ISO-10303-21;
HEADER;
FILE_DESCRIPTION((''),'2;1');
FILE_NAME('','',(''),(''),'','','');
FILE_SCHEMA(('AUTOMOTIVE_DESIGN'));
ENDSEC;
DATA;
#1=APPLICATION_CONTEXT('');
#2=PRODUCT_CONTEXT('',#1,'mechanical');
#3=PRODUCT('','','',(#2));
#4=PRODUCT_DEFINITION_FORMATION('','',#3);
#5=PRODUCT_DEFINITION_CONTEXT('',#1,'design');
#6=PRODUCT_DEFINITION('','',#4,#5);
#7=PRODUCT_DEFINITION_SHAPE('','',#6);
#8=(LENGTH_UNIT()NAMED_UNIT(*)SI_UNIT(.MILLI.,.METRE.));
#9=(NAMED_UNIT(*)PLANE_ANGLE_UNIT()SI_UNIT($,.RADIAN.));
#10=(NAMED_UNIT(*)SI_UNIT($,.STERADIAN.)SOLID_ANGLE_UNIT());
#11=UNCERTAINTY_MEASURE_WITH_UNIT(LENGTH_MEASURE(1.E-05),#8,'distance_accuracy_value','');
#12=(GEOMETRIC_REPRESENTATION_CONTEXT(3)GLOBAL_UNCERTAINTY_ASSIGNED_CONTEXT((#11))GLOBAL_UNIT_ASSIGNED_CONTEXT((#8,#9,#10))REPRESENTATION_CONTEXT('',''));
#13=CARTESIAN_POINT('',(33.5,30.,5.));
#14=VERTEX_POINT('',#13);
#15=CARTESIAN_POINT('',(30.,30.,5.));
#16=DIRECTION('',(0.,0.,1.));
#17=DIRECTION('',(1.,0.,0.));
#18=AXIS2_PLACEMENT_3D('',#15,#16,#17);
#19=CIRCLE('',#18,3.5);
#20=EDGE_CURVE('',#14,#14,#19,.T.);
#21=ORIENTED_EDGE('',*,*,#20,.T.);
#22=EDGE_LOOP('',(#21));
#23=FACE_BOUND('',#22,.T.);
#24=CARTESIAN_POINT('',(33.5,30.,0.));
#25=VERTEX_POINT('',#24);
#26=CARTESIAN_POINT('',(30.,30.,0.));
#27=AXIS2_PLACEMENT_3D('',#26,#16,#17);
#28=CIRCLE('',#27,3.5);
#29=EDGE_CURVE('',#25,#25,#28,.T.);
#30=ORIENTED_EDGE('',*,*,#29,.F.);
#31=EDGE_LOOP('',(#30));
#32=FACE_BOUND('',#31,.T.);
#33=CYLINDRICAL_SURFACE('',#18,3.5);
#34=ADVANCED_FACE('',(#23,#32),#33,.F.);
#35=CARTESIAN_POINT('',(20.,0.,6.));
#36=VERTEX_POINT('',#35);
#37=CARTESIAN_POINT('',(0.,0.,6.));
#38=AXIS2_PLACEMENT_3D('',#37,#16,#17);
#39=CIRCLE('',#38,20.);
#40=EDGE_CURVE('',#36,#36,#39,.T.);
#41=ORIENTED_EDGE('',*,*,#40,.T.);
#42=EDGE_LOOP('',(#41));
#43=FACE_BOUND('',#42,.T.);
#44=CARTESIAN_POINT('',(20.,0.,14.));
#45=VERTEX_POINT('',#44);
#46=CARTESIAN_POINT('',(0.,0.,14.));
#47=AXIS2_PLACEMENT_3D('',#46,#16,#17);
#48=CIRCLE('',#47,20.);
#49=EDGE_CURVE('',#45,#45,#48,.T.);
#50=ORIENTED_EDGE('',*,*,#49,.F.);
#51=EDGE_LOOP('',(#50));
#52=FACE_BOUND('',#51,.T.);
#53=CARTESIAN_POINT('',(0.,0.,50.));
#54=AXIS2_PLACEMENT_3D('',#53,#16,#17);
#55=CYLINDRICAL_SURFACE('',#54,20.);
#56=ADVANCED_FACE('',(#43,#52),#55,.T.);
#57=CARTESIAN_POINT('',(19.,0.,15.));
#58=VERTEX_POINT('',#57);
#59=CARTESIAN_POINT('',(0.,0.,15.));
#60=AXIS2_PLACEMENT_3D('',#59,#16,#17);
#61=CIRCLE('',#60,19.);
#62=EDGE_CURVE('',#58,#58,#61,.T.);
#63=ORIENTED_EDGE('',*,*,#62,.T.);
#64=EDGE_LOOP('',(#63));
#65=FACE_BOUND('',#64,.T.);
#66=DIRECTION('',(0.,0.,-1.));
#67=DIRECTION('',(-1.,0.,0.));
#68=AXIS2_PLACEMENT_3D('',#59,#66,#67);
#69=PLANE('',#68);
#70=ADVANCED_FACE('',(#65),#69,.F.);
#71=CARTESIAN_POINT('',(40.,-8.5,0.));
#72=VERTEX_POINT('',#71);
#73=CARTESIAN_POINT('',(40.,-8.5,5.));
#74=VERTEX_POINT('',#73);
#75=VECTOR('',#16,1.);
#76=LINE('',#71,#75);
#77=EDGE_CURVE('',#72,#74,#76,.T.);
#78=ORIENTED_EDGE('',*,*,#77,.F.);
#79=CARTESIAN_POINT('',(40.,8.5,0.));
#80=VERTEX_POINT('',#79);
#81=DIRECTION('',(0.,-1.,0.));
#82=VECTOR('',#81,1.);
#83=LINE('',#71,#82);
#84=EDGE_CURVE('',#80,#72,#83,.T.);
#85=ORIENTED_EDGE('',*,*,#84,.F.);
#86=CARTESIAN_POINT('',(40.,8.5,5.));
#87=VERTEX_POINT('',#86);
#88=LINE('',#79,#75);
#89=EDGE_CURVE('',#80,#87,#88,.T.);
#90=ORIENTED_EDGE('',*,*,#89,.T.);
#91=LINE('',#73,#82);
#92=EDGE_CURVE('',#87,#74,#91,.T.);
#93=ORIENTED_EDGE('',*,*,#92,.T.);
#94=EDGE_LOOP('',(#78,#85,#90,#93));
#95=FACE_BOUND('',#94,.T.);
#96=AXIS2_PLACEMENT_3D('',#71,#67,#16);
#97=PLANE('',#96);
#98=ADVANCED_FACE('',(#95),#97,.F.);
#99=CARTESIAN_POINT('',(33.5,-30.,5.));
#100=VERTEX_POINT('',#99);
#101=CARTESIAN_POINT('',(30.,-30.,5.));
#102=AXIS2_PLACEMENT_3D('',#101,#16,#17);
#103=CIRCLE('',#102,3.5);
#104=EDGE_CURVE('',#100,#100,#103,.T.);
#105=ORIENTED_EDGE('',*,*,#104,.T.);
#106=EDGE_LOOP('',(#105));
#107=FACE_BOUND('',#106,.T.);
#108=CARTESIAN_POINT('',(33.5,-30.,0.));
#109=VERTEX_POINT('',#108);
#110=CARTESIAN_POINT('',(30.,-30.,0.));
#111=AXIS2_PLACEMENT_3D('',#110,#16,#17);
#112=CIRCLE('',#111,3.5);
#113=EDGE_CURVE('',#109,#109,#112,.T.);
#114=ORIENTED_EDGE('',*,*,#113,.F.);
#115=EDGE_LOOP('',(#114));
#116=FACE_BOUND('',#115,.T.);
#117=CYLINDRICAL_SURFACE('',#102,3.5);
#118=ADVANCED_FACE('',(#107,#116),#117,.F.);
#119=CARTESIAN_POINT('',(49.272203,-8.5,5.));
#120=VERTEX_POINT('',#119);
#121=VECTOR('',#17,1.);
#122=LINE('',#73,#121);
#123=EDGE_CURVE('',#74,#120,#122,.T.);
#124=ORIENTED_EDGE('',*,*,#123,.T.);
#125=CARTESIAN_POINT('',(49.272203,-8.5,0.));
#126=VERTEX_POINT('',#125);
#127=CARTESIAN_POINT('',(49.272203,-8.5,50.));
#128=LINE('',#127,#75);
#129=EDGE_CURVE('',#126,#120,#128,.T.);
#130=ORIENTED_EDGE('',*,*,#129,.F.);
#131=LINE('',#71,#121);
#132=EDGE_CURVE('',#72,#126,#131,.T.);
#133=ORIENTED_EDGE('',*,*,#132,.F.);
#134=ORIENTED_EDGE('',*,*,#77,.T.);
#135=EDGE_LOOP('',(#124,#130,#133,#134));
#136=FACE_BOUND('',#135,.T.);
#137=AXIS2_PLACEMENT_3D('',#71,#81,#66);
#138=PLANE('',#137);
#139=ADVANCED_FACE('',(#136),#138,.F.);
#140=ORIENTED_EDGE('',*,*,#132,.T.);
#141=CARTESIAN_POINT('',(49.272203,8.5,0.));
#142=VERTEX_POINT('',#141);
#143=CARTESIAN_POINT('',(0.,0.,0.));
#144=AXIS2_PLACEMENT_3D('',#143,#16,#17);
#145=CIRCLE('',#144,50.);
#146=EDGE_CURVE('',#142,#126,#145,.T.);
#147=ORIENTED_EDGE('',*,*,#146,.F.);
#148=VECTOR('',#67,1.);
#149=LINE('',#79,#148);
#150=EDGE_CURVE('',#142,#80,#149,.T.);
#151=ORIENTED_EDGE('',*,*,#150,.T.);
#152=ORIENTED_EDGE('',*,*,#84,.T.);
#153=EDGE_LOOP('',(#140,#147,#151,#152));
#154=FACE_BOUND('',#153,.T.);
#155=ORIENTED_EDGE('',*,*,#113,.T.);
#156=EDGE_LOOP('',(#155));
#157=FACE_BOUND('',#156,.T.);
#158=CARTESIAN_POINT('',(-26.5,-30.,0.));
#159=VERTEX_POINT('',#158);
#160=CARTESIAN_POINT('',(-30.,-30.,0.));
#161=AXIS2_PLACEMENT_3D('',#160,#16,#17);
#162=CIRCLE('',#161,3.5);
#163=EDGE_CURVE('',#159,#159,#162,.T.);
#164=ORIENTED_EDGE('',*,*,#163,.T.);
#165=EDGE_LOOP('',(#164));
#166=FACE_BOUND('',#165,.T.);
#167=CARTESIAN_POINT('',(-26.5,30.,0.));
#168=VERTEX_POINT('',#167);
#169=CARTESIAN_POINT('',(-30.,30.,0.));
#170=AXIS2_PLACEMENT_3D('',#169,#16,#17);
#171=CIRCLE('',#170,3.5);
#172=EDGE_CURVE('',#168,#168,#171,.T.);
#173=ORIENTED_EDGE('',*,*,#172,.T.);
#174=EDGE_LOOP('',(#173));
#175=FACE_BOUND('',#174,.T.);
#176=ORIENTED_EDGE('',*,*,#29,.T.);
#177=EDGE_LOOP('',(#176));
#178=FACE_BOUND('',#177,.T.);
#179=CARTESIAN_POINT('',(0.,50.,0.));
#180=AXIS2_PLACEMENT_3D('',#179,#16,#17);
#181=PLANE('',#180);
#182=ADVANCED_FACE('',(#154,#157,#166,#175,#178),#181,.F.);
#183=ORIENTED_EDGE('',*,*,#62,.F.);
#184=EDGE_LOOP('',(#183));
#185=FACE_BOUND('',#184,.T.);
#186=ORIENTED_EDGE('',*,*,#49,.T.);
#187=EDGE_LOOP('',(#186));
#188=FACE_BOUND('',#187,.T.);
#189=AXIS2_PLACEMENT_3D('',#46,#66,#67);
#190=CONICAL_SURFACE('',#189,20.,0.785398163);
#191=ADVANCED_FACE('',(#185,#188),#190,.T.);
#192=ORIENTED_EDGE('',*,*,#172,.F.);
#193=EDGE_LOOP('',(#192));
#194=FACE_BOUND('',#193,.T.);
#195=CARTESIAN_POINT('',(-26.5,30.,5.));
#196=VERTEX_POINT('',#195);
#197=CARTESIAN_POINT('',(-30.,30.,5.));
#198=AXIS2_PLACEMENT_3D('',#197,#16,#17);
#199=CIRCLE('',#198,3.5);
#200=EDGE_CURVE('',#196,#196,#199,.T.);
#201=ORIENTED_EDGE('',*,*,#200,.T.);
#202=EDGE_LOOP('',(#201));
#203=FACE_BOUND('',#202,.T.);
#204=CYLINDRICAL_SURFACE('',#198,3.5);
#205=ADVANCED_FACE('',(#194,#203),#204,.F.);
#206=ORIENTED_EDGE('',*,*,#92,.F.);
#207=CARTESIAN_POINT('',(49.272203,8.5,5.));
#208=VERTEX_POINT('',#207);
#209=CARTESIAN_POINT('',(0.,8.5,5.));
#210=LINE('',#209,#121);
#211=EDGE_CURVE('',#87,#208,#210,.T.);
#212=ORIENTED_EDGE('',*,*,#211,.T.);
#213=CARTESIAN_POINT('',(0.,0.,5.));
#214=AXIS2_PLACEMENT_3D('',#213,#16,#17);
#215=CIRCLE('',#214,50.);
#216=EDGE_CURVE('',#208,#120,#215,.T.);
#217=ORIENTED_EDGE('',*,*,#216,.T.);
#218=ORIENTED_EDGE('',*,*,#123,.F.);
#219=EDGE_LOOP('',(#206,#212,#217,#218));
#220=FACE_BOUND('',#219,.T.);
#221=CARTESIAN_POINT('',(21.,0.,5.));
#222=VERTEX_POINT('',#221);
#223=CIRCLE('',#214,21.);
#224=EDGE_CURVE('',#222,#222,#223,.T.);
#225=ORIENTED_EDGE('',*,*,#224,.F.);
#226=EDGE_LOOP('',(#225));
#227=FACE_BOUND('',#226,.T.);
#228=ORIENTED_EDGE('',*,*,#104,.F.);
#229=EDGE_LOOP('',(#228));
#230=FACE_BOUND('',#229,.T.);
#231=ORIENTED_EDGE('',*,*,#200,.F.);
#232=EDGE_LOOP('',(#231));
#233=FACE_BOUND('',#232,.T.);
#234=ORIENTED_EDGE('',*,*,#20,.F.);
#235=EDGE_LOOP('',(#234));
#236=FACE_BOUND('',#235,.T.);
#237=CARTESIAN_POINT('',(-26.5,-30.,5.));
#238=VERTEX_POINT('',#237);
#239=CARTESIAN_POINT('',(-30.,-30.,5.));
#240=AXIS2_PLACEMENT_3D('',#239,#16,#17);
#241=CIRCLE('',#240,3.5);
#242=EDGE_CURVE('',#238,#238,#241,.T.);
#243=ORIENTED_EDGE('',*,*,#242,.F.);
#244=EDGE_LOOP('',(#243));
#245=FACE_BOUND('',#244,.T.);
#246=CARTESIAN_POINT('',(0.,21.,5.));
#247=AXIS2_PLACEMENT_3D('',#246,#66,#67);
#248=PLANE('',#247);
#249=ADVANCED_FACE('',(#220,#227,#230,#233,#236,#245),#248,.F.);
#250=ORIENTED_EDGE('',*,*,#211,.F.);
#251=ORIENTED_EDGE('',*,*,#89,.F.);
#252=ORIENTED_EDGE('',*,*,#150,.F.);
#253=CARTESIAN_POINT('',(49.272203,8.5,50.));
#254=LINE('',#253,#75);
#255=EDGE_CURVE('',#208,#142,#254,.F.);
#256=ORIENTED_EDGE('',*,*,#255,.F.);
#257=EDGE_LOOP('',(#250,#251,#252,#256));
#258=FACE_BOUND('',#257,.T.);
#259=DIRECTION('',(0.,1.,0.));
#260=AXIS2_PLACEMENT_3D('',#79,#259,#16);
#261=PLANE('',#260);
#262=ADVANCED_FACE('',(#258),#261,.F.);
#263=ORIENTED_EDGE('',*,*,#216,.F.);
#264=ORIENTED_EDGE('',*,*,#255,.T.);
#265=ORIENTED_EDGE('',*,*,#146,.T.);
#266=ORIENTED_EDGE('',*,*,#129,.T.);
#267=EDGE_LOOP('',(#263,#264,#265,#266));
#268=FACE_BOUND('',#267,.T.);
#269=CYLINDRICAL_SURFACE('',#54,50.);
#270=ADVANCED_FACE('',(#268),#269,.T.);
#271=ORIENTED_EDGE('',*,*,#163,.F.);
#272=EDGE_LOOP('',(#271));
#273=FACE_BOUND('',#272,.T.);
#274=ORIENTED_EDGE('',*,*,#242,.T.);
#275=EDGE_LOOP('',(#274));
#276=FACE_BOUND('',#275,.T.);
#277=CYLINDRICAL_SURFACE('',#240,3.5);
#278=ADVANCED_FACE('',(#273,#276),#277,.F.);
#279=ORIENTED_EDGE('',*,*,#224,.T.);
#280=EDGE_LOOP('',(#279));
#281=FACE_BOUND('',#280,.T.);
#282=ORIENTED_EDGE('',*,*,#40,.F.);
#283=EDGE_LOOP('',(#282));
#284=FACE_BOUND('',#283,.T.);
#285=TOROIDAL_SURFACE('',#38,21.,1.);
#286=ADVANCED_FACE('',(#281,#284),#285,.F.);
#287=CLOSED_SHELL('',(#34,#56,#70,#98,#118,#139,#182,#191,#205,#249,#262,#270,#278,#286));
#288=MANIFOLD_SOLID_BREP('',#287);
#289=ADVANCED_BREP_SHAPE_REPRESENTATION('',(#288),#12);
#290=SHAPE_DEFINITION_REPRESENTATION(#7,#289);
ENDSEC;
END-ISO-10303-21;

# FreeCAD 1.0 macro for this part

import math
import FreeCAD as App
import Part
import Sketcher

V = App.Vector
Q = App.Units.Quantity


def add_polygon(sketch, points):
    """Adds a closed chain of lines whose ends are joined by coincident constraints."""
    first, n = sketch.GeometryCount, len(points)
    for a, b in zip(points, points[1:] + points[:1]):
        sketch.addGeometry(Part.LineSegment(App.Vector(*a, 0), App.Vector(*b, 0)), False)
    for i in range(n):
        sketch.addConstraint(Sketcher.Constraint("Coincident", first + i, 2, first + (i + 1) % n, 1))

doc = App.newDocument("Part")
params = doc.addObject("Spreadsheet::Sheet", "Params")
for row, (alias, value) in enumerate([
    ("sketch1_radius", "1 mm"),
    ("sketch1_width", "50 mm"),
    ("sketch1_width2", "29 mm"),
    ("sketch1_width3", "19 mm"),
    ("sketch1_height", "15 mm"),
    ("revolution_angle", "360 deg"),
    ("sketch2_width", "10 mm"),
    ("sketch2_height", "17 mm"),
    ("sketch3_height", "10 mm"),
    ("sketch3_width", "3.5 mm"),
    ("groove_angle", "360 deg"),
], start=1):
    params.set(f"A{row}", alias)
    params.set(f"B{row}", "=" + value)
    params.setAlias(f"B{row}", alias)

body = doc.addObject("PartDesign::Body", "Body")

sketch1 = doc.addObject("Sketcher::SketchObject", "Sketch")
body.addObject(sketch1)
sketch1.AttachmentSupport = (doc.YZ_Plane, [""])
sketch1.MapMode = "FlatFace"
sketch1.addGeometry([
    Part.LineSegment(V(0, 15, 0), V(0, 0, 0)),
    Part.LineSegment(V(0, 0, 0), V(50, 0, 0)),
    Part.LineSegment(V(50, 0, 0), V(50, 5, 0)),
    Part.LineSegment(V(50, 5, 0), V(21, 5, 0)),
    Part.ArcOfCircle(Part.Circle(V(21, 6, 0), V(0, 0, 1), 1), math.radians(-180), math.radians(-90)),
    Part.LineSegment(V(20, 6, 0), V(20, 14, 0)),
    Part.LineSegment(V(20, 14, 0), V(19, 15, 0)),
    Part.LineSegment(V(19, 15, 0), V(0, 15, 0)),
], False)
sketch1.addConstraint([
    Sketcher.Constraint("Coincident", 0, 2, 1, 1),
    Sketcher.Constraint("Coincident", 1, 2, 2, 1),
    Sketcher.Constraint("Coincident", 2, 2, 3, 1),
    Sketcher.Constraint("Tangent", 3, 2, 4, 2),
    Sketcher.Constraint("Tangent", 4, 1, 5, 1),
    Sketcher.Constraint("Coincident", 5, 2, 6, 1),
    Sketcher.Constraint("Coincident", 6, 2, 7, 1),
    Sketcher.Constraint("Coincident", 7, 2, 0, 1),
    Sketcher.Constraint("Vertical", 0),
    Sketcher.Constraint("Horizontal", 1),
    Sketcher.Constraint("Vertical", 2),
    Sketcher.Constraint("Horizontal", 3),
    Sketcher.Constraint("Vertical", 5),
    Sketcher.Constraint("Horizontal", 7),
    Sketcher.Constraint("Coincident", 0, 2, -1, 1),
    Sketcher.Constraint("Radius", 4, Q("1 mm")),
    Sketcher.Constraint("DistanceX", 1, 1, 1, 2, Q("50 mm")),
    Sketcher.Constraint("DistanceX", 3, 2, 3, 1, Q("29 mm")),
    Sketcher.Constraint("DistanceX", 7, 2, 7, 1, Q("19 mm")),
    Sketcher.Constraint("DistanceY", 0, 2, 0, 1, Q("15 mm")),
    Sketcher.Constraint("DistanceY", 2, 1, 2, 2, Q("5 mm")),
    Sketcher.Constraint("DistanceY", 5, 1, 5, 2, Q("8 mm")),
])
sketch1.setExpression("Constraints[15]", "Params.sketch1_radius")
sketch1.setExpression("Constraints[16]", "Params.sketch1_width")
sketch1.setExpression("Constraints[17]", "Params.sketch1_width2")
sketch1.setExpression("Constraints[18]", "Params.sketch1_width3")
sketch1.setExpression("Constraints[19]", "Params.sketch1_height")
revolution = doc.addObject("PartDesign::Revolution", "Revolution")
body.addObject(revolution)
revolution.Profile = sketch1
revolution.ReferenceAxis = (sketch1, ["V_Axis"])
revolution.setExpression("Angle", "Params.revolution_angle")

sketch2 = doc.addObject("Sketcher::SketchObject", "Sketch001")
body.addObject(sketch2)
sketch2.AttachmentSupport = (doc.XY_Plane, [""])
sketch2.MapMode = "FlatFace"
sketch2.AttachmentOffset = App.Placement(V(0, 0, 5), App.Rotation())
add_polygon(sketch2, [(40, 8), (40, -8), (50, -8), (50, 8)])
sketch2.addConstraint([
    Sketcher.Constraint("Vertical", 0),
    Sketcher.Constraint("Horizontal", 1),
    Sketcher.Constraint("Vertical", 2),
    Sketcher.Constraint("Horizontal", 3),
    Sketcher.Constraint("DistanceX", 1, 1, 1, 2, Q("10 mm")),
    Sketcher.Constraint("DistanceY", 0, 2, 0, 1, Q("17 mm")),
    Sketcher.Constraint("DistanceX", -1, 1, 0, 2, Q("40 mm")),
    Sketcher.Constraint("DistanceY", 0, 2, -1, 1, Q("8.5 mm")),
])
sketch2.setExpression("Constraints[8]", "Params.sketch2_width")
sketch2.setExpression("Constraints[9]", "Params.sketch2_height")
pocket1 = doc.addObject("PartDesign::Pocket", "Pocket")
body.addObject(pocket1)
pocket1.Profile = sketch2
pocket1.Type = "ThroughAll"

sketch3 = doc.addObject("Sketcher::SketchObject", "Sketch002")
body.addObject(sketch3)
sketch3.AttachmentSupport = (doc.YZ_Plane, [""])
sketch3.MapMode = "FlatFace"
sketch3.AttachmentOffset = App.Placement(V(0, 0, -30), App.Rotation())
add_polygon(sketch3, [(30, -7.1), (30, 5), (26.5, 5), (26.5, -5)])
sketch3.addGeometry(Part.LineSegment(V(30, 5, 0), V(30, -7.1, 0)), True)
sketch3.addConstraint([
    Sketcher.Constraint("Vertical", 0),
    Sketcher.Constraint("Horizontal", 1),
    Sketcher.Constraint("Vertical", 2),
    Sketcher.Constraint("Vertical", 4),
    Sketcher.Constraint("Coincident", 4, 1, 0, 2),
    Sketcher.Constraint("Equal", 0, 4),
    Sketcher.Constraint("DistanceY", 2, 2, 2, 1, Q("10 mm")),
    Sketcher.Constraint("Angle", 3, Q("-31 deg")),
    Sketcher.Constraint("DistanceX", 1, 2, 1, 1, Q("3.5 mm")),
    Sketcher.Constraint("DistanceX", -1, 1, 0, 2, Q("30 mm")),
    Sketcher.Constraint("DistanceY", -1, 1, 0, 2, Q("5 mm")),
])
sketch3.setExpression("Constraints[10]", "Params.sketch3_height")
sketch3.setExpression("Constraints[12]", "Params.sketch3_width")
groove = doc.addObject("PartDesign::Groove", "Groove")
body.addObject(groove)
groove.Profile = sketch3
groove.ReferenceAxis = (sketch3, ["Axis0"])
groove.setExpression("Angle", "Params.groove_angle")
doc.recompute()

polarpattern = doc.addObject("PartDesign::PolarPattern", "PolarPattern")
body.addObject(polarpattern)
polarpattern.Originals = [groove]
polarpattern.Axis = (doc.Z_Axis, [""])
polarpattern.Angle = 360
polarpattern.Occurrences = 4
body.Tip = polarpattern

doc.recompute()
